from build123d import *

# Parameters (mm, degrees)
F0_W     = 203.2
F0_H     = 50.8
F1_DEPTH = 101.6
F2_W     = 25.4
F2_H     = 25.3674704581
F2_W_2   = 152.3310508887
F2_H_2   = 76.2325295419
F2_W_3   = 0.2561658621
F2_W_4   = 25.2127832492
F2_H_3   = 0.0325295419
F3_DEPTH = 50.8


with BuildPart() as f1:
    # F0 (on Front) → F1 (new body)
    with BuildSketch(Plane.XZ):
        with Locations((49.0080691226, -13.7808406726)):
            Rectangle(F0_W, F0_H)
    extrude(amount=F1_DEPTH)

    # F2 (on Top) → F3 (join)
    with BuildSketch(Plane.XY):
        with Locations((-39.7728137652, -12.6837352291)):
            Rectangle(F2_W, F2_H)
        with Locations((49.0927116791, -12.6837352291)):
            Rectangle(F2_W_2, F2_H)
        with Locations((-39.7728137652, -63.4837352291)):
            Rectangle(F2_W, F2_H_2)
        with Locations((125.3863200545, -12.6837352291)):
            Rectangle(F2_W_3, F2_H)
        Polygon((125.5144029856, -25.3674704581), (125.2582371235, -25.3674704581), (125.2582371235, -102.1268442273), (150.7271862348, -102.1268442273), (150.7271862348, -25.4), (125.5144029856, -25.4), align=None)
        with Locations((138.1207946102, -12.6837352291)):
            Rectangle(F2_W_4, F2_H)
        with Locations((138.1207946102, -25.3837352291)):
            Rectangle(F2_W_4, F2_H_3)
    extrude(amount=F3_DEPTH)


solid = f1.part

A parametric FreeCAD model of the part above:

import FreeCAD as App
import Part
import Sketcher
from FreeCAD import Vector
Q = App.Units.Quantity


def add_polygon(sketch, points):
    """Adds a closed chain of lines whose ends are joined by coincident constraints."""
    first, n = sketch.GeometryCount, len(points)
    for a, b in zip(points, points[1:] + points[:1]):
        sketch.addGeometry(Part.LineSegment(App.Vector(*a, 0), App.Vector(*b, 0)), False)
    for i in range(n):
        sketch.addConstraint(Sketcher.Constraint("Coincident", first + i, 2, first + (i + 1) % n, 1))

doc = App.newDocument("Part")
body = doc.addObject("PartDesign::Body", "Body")

# Sketch on XZ plane
sketch1 = body.newObject("Sketcher::SketchObject", "Sketch")
sketch1.AttachmentSupport = (doc.getObject("XZ_Plane"), [""])
sketch1.MapMode = "FlatFace"
add_polygon(sketch1, [(-52.591931, 11.619159), (-52.591931, -39.180841), (150.608069, -39.180841), (150.608069, 11.619159)])  # lines 0-3
sketch1.addConstraint(Sketcher.Constraint("Vertical", 0))
sketch1.addConstraint(Sketcher.Constraint("Horizontal", 1))
sketch1.addConstraint(Sketcher.Constraint("Vertical", 2))
sketch1.addConstraint(Sketcher.Constraint("Horizontal", 3))
sketch1.addConstraint(Sketcher.Constraint("DistanceX", 1, 1, 1, 2, Q("8 in")))
sketch1.addConstraint(Sketcher.Constraint("DistanceY", 0, 2, 0, 1, Q("2 in")))
sketch1.addConstraint(Sketcher.Constraint("DistanceX", 0, 2, -1, 1, Q("52.591931 mm")))
sketch1.addConstraint(Sketcher.Constraint("DistanceY", 0, 2, -1, 1, Q("39.180841 mm")))
pad1 = body.newObject("PartDesign::Pad", "Pad")
pad1.Profile = sketch1
pad1.Length = Q("4 in")

# Sketch on XY plane
sketch2 = body.newObject("Sketcher::SketchObject", "Sketch001")
sketch2.AttachmentSupport = (doc.getObject("XY_Plane"), [""])
sketch2.MapMode = "FlatFace"
add_polygon(sketch2, [(-52.472814, 0), (-52.472814, -101.6), (-27.072814, -101.6), (-27.072814, -25.36747), (125.258237, -25.36747), (125.258237, -102.126844), (150.727186, -102.126844), (150.727186, 0)])  # lines 0-7
sketch2.addConstraint(Sketcher.Constraint("Vertical", 0))
sketch2.addConstraint(Sketcher.Constraint("Horizontal", 1))
sketch2.addConstraint(Sketcher.Constraint("Vertical", 2))
sketch2.addConstraint(Sketcher.Constraint("Horizontal", 3))
sketch2.addConstraint(Sketcher.Constraint("Vertical", 4))
sketch2.addConstraint(Sketcher.Constraint("Horizontal", 5))
sketch2.addConstraint(Sketcher.Constraint("Vertical", 6))
sketch2.addConstraint(Sketcher.Constraint("Horizontal", 7))
sketch2.addConstraint(Sketcher.Constraint("PointOnObject", 6, 2, -1))
sketch2.addConstraint(Sketcher.Constraint("DistanceX", 1, 1, 1, 2, Q("1 in")))
sketch2.addConstraint(Sketcher.Constraint("DistanceX", 7, 2, 7, 1, Q("8 in")))
sketch2.addConstraint(Sketcher.Constraint("DistanceY", 0, 2, 0, 1, Q("4 in")))
sketch2.addConstraint(Sketcher.Constraint("DistanceX", 3, 1, 3, 2, Q("152.331051 mm")))
sketch2.addConstraint(Sketcher.Constraint("DistanceY", 2, 1, 2, 2, Q("76.23253 mm")))
sketch2.addConstraint(Sketcher.Constraint("DistanceY", 4, 2, 4, 1, Q("76.759374 mm")))
sketch2.addConstraint(Sketcher.Constraint("DistanceX", 0, 2, -1, 1, Q("52.472814 mm")))
pad2 = body.newObject("PartDesign::Pad", "Pad001")
pad2.Profile = sketch2
pad2.Length = Q("2 in")

doc.recompute()
